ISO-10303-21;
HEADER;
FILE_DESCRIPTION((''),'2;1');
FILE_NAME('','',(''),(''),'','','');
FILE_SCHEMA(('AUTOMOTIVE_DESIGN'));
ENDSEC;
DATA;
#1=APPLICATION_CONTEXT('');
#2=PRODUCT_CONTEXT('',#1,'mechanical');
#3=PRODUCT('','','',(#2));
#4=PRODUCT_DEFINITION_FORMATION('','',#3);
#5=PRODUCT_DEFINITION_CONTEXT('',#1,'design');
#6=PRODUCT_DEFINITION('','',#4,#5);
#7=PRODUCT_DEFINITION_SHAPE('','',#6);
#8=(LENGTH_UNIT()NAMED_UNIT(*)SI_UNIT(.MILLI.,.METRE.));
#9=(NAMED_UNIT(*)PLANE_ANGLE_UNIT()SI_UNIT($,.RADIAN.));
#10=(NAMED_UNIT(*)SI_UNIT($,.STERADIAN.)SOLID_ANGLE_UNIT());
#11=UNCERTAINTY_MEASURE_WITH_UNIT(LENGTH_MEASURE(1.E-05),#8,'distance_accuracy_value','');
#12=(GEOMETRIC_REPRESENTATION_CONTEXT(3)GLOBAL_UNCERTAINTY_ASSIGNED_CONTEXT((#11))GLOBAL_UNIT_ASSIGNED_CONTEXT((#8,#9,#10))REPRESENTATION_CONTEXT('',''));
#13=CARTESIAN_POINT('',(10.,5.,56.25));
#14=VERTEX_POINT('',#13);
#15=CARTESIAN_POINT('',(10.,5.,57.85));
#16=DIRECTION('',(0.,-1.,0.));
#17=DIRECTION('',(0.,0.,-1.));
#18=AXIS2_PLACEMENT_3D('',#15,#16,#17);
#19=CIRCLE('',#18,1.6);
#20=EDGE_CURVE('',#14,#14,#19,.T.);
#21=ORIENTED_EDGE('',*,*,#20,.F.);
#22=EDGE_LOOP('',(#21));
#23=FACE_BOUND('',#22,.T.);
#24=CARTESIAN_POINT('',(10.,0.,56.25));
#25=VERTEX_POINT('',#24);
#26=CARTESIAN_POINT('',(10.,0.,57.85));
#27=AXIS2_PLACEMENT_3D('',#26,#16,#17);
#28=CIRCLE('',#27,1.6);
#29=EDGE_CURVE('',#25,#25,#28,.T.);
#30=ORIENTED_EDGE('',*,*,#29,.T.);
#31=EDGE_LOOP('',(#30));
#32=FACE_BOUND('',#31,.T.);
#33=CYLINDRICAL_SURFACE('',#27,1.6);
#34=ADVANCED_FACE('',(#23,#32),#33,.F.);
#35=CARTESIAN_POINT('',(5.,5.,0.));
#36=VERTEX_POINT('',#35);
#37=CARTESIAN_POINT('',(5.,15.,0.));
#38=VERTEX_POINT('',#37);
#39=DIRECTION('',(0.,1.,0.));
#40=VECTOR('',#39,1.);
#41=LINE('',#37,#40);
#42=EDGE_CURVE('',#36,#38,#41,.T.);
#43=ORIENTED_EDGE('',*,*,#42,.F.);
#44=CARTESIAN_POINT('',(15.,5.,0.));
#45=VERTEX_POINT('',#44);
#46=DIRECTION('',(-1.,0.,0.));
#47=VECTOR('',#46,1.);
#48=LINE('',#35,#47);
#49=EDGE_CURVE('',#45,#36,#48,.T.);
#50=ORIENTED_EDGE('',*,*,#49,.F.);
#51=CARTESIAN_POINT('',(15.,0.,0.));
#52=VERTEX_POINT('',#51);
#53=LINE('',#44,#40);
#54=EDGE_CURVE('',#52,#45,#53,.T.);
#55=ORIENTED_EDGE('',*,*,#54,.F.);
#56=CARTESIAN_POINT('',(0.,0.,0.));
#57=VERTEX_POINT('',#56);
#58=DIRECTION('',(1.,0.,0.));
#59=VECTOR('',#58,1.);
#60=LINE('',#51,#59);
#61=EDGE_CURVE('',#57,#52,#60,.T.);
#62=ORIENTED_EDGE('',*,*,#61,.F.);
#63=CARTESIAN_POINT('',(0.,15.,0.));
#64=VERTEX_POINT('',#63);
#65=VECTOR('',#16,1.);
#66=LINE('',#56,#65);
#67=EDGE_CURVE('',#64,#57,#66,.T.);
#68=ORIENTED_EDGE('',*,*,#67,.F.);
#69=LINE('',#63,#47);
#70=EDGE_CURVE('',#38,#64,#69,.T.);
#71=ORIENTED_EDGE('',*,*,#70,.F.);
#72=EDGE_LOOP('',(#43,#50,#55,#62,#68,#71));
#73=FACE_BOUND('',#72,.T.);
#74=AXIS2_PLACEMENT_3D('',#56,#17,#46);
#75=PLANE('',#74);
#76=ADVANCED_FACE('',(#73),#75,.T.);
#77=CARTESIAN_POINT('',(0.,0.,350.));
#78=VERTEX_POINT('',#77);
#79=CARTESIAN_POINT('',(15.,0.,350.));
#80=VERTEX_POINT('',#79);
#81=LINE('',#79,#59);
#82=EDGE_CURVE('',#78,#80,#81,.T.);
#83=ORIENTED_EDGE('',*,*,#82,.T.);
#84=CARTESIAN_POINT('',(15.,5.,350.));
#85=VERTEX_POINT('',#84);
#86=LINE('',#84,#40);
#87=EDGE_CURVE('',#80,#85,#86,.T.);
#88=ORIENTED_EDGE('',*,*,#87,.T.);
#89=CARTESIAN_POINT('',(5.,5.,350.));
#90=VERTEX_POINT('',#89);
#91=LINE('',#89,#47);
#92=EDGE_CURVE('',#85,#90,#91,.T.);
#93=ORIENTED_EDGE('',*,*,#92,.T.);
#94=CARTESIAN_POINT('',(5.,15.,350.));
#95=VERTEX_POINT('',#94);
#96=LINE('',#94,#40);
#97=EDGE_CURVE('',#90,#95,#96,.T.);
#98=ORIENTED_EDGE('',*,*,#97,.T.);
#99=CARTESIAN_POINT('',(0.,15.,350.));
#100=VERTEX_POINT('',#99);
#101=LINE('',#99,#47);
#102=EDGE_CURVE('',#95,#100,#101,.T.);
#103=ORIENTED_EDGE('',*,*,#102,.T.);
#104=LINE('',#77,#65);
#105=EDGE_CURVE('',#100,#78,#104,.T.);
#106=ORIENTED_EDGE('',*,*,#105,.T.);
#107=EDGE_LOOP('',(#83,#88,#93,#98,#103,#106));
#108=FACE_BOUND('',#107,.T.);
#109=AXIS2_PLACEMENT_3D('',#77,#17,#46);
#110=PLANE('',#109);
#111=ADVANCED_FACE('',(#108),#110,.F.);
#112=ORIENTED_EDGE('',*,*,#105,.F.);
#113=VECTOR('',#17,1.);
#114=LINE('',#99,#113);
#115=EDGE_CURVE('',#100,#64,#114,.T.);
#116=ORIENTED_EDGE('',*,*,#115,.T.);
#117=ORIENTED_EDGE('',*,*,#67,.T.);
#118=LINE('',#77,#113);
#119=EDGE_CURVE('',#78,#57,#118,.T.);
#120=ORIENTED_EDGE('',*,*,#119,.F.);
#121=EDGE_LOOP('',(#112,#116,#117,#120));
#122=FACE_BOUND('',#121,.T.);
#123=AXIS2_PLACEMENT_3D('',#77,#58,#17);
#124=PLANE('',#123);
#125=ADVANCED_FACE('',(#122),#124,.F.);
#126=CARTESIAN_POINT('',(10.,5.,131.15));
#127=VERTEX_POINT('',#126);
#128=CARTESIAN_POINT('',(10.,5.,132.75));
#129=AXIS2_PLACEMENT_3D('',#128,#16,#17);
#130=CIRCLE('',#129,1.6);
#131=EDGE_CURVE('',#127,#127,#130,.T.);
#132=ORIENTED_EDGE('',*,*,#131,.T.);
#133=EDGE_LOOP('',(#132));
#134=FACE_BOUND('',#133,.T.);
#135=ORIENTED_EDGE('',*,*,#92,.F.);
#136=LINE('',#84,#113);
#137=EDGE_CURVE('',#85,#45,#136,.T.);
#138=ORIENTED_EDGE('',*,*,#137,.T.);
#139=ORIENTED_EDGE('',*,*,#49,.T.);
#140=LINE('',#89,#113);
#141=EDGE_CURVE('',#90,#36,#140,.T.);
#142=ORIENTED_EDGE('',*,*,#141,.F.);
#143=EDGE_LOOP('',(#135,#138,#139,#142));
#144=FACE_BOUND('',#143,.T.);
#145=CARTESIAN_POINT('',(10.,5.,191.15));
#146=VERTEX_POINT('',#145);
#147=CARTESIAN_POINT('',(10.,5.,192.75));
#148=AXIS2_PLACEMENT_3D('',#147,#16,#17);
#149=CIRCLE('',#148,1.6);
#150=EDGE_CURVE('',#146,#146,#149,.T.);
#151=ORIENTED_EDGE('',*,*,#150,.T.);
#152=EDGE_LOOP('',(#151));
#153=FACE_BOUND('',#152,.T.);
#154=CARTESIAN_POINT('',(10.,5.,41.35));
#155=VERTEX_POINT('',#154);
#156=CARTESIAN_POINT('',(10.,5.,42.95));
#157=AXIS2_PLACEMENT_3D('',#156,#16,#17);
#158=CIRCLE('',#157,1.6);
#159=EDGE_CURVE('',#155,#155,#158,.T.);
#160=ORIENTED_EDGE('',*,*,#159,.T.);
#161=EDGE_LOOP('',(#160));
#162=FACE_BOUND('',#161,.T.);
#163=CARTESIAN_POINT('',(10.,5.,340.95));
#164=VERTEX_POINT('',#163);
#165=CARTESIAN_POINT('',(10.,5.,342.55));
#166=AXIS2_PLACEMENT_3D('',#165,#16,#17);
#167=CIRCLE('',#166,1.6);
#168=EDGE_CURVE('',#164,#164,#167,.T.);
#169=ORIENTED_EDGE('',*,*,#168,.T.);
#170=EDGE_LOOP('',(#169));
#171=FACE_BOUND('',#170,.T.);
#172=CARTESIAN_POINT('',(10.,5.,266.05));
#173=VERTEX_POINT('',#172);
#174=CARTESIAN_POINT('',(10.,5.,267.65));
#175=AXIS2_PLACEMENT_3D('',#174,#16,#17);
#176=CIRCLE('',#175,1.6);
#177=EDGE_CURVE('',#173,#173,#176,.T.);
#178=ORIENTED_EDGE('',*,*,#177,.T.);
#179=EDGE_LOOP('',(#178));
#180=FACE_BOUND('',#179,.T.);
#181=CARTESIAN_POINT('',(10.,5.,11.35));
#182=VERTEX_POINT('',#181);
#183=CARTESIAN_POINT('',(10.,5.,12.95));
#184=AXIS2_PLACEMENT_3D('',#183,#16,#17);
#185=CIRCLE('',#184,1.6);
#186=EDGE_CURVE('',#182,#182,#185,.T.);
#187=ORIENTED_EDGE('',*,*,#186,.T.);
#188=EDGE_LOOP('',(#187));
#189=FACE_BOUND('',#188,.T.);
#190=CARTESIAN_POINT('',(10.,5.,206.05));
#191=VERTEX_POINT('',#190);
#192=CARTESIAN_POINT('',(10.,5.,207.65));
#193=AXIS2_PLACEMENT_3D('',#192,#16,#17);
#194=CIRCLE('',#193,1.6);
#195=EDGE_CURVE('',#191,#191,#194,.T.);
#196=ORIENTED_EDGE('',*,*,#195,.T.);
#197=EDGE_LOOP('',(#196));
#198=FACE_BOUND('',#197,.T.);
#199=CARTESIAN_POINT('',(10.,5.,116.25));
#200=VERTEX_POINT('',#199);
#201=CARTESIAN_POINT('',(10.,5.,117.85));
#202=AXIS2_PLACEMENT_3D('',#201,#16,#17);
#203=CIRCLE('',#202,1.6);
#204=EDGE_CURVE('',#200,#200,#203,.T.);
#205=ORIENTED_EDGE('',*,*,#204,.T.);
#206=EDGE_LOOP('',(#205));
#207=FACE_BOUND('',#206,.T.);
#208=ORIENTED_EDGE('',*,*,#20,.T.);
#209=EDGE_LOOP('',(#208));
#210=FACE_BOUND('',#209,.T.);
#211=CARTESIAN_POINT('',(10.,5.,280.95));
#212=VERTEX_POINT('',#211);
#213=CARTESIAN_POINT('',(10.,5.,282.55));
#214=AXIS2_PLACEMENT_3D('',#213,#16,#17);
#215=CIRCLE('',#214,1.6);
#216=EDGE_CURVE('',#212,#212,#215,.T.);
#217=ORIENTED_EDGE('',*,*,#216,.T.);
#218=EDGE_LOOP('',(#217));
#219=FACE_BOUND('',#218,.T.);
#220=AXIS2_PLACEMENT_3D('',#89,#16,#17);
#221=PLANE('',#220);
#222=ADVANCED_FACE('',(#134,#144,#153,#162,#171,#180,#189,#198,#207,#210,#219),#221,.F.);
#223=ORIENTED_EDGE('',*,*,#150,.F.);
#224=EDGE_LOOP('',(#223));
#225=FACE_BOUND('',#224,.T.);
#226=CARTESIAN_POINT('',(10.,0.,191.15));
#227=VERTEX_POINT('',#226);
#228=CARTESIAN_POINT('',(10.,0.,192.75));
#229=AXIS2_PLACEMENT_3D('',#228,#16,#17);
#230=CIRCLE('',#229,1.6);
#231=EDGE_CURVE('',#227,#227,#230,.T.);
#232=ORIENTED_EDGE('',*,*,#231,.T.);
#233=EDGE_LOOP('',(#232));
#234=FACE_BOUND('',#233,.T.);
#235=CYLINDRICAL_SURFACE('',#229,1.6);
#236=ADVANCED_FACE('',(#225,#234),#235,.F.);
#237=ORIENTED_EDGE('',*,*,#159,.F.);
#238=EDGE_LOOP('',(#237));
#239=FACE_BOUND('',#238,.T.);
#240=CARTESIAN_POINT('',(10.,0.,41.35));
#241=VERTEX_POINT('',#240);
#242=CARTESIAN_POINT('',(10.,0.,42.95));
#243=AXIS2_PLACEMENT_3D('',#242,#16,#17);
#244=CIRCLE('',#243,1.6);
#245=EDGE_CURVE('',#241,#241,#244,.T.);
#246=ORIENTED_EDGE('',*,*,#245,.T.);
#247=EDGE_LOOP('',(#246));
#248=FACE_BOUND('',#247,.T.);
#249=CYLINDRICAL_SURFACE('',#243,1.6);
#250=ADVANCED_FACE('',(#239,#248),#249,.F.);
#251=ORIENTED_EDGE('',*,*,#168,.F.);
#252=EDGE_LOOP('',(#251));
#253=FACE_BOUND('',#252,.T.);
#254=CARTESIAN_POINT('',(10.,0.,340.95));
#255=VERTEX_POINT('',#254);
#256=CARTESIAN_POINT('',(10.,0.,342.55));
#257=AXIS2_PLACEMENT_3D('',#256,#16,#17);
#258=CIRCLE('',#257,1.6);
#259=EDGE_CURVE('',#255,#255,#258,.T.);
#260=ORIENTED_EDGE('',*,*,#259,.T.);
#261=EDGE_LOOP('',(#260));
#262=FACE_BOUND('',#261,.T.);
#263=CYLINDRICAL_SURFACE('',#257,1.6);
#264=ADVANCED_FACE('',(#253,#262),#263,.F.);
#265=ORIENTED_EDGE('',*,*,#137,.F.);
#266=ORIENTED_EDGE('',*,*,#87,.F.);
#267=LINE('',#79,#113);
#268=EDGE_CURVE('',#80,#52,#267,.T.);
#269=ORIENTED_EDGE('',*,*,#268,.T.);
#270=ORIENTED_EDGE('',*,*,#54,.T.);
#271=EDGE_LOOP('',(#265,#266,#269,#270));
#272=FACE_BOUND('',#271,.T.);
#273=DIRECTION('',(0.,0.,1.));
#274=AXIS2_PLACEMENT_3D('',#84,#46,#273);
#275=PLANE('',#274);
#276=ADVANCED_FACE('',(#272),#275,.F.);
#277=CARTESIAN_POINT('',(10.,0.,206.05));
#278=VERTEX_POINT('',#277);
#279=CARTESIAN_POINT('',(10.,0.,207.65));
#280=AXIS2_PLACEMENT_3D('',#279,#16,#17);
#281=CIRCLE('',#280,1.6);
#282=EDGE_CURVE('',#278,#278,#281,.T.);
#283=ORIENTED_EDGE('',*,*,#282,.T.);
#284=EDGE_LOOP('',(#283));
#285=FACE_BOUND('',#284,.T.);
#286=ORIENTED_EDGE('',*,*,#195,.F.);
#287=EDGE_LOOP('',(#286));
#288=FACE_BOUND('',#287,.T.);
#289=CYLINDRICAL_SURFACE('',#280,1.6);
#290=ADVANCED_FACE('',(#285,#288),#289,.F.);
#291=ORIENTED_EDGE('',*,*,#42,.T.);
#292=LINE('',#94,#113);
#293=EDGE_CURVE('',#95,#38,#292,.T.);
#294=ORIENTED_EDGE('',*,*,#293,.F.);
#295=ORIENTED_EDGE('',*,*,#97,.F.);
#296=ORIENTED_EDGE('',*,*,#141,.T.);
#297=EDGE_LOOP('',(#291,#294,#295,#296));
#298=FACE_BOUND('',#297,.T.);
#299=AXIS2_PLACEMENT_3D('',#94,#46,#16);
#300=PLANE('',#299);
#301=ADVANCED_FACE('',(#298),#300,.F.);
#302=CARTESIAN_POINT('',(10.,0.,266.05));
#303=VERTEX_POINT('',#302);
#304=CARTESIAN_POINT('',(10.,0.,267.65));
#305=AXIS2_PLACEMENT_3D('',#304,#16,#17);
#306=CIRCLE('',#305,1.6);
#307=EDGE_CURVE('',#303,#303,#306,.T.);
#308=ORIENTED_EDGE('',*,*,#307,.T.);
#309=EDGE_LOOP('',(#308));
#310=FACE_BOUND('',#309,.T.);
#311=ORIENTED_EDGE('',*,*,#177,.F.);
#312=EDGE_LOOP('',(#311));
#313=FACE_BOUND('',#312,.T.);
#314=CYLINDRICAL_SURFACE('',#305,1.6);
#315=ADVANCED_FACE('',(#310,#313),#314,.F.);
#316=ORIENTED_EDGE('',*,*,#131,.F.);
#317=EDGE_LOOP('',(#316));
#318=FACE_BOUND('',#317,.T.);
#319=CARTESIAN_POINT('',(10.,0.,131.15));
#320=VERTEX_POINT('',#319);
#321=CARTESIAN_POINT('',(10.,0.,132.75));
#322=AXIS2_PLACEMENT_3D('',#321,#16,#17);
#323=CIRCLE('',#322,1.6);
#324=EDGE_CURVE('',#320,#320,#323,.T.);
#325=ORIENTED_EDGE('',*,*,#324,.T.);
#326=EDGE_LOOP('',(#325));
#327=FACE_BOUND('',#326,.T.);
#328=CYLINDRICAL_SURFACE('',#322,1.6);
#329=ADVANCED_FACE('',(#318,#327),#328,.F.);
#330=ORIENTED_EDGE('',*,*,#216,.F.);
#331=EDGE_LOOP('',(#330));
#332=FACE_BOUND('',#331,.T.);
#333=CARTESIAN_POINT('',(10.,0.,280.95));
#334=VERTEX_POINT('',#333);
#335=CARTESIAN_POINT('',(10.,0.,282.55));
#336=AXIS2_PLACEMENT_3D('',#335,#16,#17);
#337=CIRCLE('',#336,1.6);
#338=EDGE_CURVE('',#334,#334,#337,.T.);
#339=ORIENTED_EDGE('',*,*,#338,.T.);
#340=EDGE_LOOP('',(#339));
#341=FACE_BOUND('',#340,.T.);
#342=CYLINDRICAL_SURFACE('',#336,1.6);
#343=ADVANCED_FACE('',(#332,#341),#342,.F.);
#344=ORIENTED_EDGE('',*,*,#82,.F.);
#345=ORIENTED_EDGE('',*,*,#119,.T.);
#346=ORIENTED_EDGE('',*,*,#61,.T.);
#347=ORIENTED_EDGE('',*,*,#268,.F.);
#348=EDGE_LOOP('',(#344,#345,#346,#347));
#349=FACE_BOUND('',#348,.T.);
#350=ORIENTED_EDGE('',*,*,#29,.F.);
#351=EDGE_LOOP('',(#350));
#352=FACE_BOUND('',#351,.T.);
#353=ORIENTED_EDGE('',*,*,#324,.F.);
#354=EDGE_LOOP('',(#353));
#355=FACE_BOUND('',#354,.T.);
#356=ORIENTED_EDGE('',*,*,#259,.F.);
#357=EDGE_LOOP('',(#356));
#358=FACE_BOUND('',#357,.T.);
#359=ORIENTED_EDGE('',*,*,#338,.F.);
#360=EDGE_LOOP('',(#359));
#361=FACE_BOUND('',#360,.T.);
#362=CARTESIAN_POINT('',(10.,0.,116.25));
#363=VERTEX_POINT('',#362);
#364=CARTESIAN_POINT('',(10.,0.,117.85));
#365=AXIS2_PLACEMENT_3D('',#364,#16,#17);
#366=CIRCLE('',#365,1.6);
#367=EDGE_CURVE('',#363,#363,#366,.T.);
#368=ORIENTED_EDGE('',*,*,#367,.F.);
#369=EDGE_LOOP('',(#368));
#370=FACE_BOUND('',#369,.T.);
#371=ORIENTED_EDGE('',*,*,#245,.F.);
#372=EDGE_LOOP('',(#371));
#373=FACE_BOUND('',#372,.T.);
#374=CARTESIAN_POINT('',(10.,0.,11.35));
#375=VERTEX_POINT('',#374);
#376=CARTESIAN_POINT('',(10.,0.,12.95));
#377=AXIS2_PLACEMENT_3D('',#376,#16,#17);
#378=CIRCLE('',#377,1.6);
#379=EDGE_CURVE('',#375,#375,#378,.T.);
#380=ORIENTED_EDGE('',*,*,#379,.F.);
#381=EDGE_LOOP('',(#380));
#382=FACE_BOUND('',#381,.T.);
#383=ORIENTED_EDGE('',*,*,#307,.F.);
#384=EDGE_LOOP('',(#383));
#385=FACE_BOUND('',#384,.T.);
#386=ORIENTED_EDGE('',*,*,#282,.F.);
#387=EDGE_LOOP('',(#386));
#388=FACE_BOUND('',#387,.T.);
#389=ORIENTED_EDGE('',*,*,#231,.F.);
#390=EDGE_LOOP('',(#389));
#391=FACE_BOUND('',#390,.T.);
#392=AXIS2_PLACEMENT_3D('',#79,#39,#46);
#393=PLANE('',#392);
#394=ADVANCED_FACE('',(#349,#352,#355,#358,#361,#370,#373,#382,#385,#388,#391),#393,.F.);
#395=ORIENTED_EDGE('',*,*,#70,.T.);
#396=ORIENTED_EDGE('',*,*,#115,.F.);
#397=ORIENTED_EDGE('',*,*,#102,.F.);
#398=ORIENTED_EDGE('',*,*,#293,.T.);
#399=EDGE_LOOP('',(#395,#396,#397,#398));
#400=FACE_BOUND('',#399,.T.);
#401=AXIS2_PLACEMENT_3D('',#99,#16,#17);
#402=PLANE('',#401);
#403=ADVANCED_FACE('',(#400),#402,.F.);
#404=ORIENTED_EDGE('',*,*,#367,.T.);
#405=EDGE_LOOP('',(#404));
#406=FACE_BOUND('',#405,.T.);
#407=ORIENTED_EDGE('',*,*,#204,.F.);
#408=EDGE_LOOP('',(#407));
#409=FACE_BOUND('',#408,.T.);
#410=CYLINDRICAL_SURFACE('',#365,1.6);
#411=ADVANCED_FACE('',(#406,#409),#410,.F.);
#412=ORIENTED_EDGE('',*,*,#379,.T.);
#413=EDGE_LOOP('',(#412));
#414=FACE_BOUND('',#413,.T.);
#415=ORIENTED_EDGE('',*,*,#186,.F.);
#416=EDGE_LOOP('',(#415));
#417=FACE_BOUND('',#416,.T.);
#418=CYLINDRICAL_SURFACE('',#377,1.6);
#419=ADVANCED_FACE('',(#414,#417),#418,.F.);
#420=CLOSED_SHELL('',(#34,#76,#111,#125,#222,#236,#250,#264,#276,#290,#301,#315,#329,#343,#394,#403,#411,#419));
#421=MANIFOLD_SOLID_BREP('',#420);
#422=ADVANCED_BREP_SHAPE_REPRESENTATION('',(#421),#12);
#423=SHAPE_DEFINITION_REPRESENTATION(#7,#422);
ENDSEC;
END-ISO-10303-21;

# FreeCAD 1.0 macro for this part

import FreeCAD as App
import Part
import Sketcher

V = App.Vector


def add_polygon(sketch, points):
    """Adds a closed chain of lines whose ends are joined by coincident constraints."""
    first, n = sketch.GeometryCount, len(points)
    for a, b in zip(points, points[1:] + points[:1]):
        sketch.addGeometry(Part.LineSegment(App.Vector(*a, 0), App.Vector(*b, 0)), False)
    for i in range(n):
        sketch.addConstraint(Sketcher.Constraint("Coincident", first + i, 2, first + (i + 1) % n, 1))

doc = App.newDocument("Part")
body = doc.addObject("PartDesign::Body", "Body")

sketch1 = doc.addObject("Sketcher::SketchObject", "Sketch")
body.addObject(sketch1)
sketch1.AttachmentSupport = (doc.XY_Plane, [""])
sketch1.MapMode = "FlatFace"
add_polygon(sketch1, [(0, 15), (0, 0), (15, 0), (15, 5), (5, 5), (5, 15)])
sketch1.addConstraint([
    Sketcher.Constraint("Vertical", 0),
    Sketcher.Constraint("Horizontal", 1),
    Sketcher.Constraint("Vertical", 2),
    Sketcher.Constraint("Horizontal", 3),
    Sketcher.Constraint("Vertical", 4),
    Sketcher.Constraint("Horizontal", 5),
    Sketcher.Constraint("Coincident", 0, 2, -1, 1),
    Sketcher.Constraint("Equal", 1, 0),
    Sketcher.Constraint("Equal", 5, 2),
    Sketcher.Constraint("DistanceX", 1, 1, 1, 2, 15.0),
    Sketcher.Constraint("DistanceX", 3, 2, 3, 1, 10.0),
])
pad1 = doc.addObject("PartDesign::Pad", "Pad")
body.addObject(pad1)
pad1.Profile = sketch1
pad1.Length = 350

sketch2 = doc.addObject("Sketcher::SketchObject", "Sketch001")
body.addObject(sketch2)
sketch2.AttachmentSupport = (doc.XZ_Plane, [""])
sketch2.MapMode = "FlatFace"
sketch2.addGeometry([
    Part.Circle(V(10, 342.6, 0), V(0, 0, 1), 1.6),
    Part.Circle(V(10, 282.6, 0), V(0, 0, 1), 1.6),
], False)
sketch2.addConstraint([
    Sketcher.Constraint("Equal", 0, 1),
    Sketcher.Constraint("Vertical", 0, 3, 1, 3),
    Sketcher.Constraint("Diameter", 0, 3.2),
    Sketcher.Constraint("DistanceX", -1, 1, 0, 3, 10.0),
    Sketcher.Constraint("DistanceY", 1, 3, 0, 3, 60.0),
    Sketcher.Constraint("DistanceY", -1, 1, 0, 3, 342.55),
])
doc.recompute()
hole = doc.addObject("PartDesign::Hole", "Hole")
body.addObject(hole)
hole.Profile = sketch2
hole.ThreadType = "None"
hole.Diameter = 3.2
hole.DepthType = "ThroughAll"
doc.recompute()

linearpattern = doc.addObject("PartDesign::LinearPattern", "LinearPattern")
body.addObject(linearpattern)
linearpattern.Originals = [hole]
linearpattern.Direction = (doc.Z_Axis, [""])
linearpattern.Mode = "offset"
linearpattern.Offset = 74.9
linearpattern.Occurrences = 4
linearpattern.Reversed = True
body.Tip = linearpattern

sketch3 = doc.addObject("Sketcher::SketchObject", "Sketch002")
body.addObject(sketch3)
sketch3.AttachmentSupport = (doc.XZ_Plane, [""])
sketch3.MapMode = "FlatFace"
sketch3.addGeometry([
    Part.Circle(V(10, 43, 0), V(0, 0, 1), 1.6),
    Part.Circle(V(10, 12.9, 0), V(0, 0, 1), 1.6),
], False)
sketch3.addConstraint([
    Sketcher.Constraint("Equal", 0, 1),
    Sketcher.Constraint("Vertical", 0, 3, 1, 3),
    Sketcher.Constraint("Diameter", 0, 3.2),
    Sketcher.Constraint("DistanceX", -1, 1, 0, 3, 10.0),
    Sketcher.Constraint("DistanceY", 1, 3, 0, 3, 30.0),
    Sketcher.Constraint("DistanceY", -1, 1, 0, 3, 42.95),
])
doc.recompute()
hole2 = doc.addObject("PartDesign::Hole", "Hole001")
body.addObject(hole2)
hole2.Profile = sketch3
hole2.ThreadType = "None"
hole2.Diameter = 3.2
hole2.DepthType = "ThroughAll"

doc.recompute()
